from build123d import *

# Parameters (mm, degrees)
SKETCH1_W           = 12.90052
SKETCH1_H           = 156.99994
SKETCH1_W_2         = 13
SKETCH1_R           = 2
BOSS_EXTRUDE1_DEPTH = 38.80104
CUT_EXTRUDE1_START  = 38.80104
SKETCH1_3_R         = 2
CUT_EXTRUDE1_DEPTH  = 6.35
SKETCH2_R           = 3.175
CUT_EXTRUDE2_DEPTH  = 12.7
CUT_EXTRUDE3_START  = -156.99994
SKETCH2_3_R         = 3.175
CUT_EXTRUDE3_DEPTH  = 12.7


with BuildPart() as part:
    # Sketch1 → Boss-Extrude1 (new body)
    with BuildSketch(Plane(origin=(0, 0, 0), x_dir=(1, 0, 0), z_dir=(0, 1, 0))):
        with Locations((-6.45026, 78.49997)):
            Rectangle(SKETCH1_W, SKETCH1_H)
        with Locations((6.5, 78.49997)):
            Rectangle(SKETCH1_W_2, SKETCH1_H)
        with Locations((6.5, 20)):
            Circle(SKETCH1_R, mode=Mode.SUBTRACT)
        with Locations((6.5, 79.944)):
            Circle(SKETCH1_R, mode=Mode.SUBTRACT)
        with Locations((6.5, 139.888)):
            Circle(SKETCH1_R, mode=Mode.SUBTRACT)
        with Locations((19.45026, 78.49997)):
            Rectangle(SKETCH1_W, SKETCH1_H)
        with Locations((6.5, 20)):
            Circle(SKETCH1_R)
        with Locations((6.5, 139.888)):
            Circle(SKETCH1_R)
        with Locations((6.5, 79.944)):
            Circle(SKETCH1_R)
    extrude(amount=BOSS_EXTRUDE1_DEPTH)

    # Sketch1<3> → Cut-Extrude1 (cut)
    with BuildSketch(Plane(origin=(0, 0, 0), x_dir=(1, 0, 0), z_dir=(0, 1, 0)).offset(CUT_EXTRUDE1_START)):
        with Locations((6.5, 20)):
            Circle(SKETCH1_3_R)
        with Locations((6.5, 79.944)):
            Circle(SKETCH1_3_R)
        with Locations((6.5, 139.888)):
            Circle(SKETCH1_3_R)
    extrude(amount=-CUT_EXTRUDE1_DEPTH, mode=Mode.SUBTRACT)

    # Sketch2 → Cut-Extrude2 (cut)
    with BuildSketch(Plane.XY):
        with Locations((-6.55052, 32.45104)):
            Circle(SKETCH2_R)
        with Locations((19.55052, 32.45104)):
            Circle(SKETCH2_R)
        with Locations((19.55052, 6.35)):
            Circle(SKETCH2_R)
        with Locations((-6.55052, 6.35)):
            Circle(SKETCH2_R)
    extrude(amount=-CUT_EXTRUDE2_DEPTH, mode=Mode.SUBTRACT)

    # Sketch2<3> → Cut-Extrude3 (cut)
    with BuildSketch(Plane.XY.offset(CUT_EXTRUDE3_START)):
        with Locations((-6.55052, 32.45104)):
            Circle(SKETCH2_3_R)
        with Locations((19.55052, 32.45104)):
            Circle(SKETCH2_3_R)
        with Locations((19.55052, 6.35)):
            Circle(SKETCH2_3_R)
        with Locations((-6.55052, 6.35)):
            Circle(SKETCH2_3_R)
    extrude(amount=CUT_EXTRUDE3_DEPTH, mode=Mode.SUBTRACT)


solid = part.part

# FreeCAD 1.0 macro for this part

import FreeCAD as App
import Part
import Sketcher

V = App.Vector
Q = App.Units.Quantity


def add_polygon(sketch, points):
    """Adds a closed chain of lines whose ends are joined by coincident constraints."""
    first, n = sketch.GeometryCount, len(points)
    for a, b in zip(points, points[1:] + points[:1]):
        sketch.addGeometry(Part.LineSegment(App.Vector(*a, 0), App.Vector(*b, 0)), False)
    for i in range(n):
        sketch.addConstraint(Sketcher.Constraint("Coincident", first + i, 2, first + (i + 1) % n, 1))

doc = App.newDocument("Part")
body = doc.addObject("PartDesign::Body", "Body")

sketch1 = body.newObject("Sketcher::SketchObject", "Sketch")
sketch1.AttachmentSupport = (doc.getObject("XZ_Plane"), [""])
sketch1.MapMode = "FlatFace"
add_polygon(sketch1, [(-12.90052, -156.99994), (-12.90052, 0), (25.90052, 0), (25.90052, -156.99994)])
sketch1.addConstraint([
    Sketcher.Constraint("Vertical", 0),
    Sketcher.Constraint("Horizontal", 1),
    Sketcher.Constraint("Vertical", 2),
    Sketcher.Constraint("Horizontal", 3),
    Sketcher.Constraint("PointOnObject", 0, 2, -1),
    Sketcher.Constraint("DistanceX", 1, 1, 1, 2, Q("1.5276 in")),
    Sketcher.Constraint("DistanceY", 0, 1, 0, 2, Q("6.1811 in")),
    Sketcher.Constraint("DistanceX", 0, 2, -1, 1, 12.90052),
])
pad1 = body.newObject("PartDesign::Pad", "Pad")
pad1.Profile = sketch1
pad1.Length = Q("1.5276 in")
pad1.Reversed = True

sketch2 = body.newObject("Sketcher::SketchObject", "Sketch001")
sketch2.AttachmentSupport = (doc.getObject("XZ_Plane"), [""])
sketch2.MapMode = "FlatFace"
sketch2.AttachmentOffset = App.Placement(V(0, 0, -1.5276 * 25.4), App.Rotation())
sketch2.addGeometry([
    Part.Circle(V(6.5, -20, 0), V(0, 0, 1), 2),
    Part.Circle(V(6.5, -79.944, 0), V(0, 0, 1), 2),
    Part.Circle(V(6.5, -139.888, 0), V(0, 0, 1), 2),
], False)
sketch2.addConstraint([
    Sketcher.Constraint("Equal", 0, 1),
    Sketcher.Constraint("Equal", 1, 2),
    Sketcher.Constraint("Vertical", 0, 3, 1, 3),
    Sketcher.Constraint("Vertical", 1, 3, 2, 3),
    Sketcher.Constraint("Diameter", 0, 4.0),
    Sketcher.Constraint("DistanceY", 1, 3, 0, 3, Q("2.36 in")),
    Sketcher.Constraint("DistanceY", 2, 3, 1, 3, Q("2.36 in")),
    Sketcher.Constraint("DistanceX", -1, 1, 0, 3, 6.5),
    Sketcher.Constraint("DistanceY", 0, 3, -1, 1, 20.0),
])
pocket1 = body.newObject("PartDesign::Pocket", "Pocket")
pocket1.Profile = sketch2
pocket1.Length = Q("0.25 in")
pocket1.Reversed = True

sketch3 = body.newObject("Sketcher::SketchObject", "Sketch002")
sketch3.AttachmentSupport = (doc.getObject("XY_Plane"), [""])
sketch3.MapMode = "FlatFace"
sketch3.addGeometry([
    Part.Circle(V(-6.55052, 32.45104, 0), V(0, 0, 1), 3.175),
    Part.Circle(V(19.55052, 32.45104, 0), V(0, 0, 1), 3.175),
    Part.Circle(V(19.55052, 6.35, 0), V(0, 0, 1), 3.175),
    Part.Circle(V(-6.55052, 6.35, 0), V(0, 0, 1), 3.175),
], False)
sketch3.addConstraint([
    Sketcher.Constraint("Equal", 0, 1),
    Sketcher.Constraint("Equal", 1, 2),
    Sketcher.Constraint("Equal", 2, 3),
    Sketcher.Constraint("Horizontal", 0, 3, 1, 3),
    Sketcher.Constraint("Horizontal", 2, 3, 3, 3),
    Sketcher.Constraint("Vertical", 1, 3, 2, 3),
    Sketcher.Constraint("Vertical", 0, 3, 3, 3),
    Sketcher.Constraint("Diameter", 0, Q("0.25 in")),
    Sketcher.Constraint("DistanceY", -1, 1, 2, 3, Q("0.25 in")),
    Sketcher.Constraint("DistanceY", -1, 1, 0, 3, Q("1.2776 in")),
    Sketcher.Constraint("DistanceX", 0, 3, 1, 3, Q("1.0276 in")),
    Sketcher.Constraint("DistanceX", 0, 3, -1, 1, 6.55052),
])
pocket2 = body.newObject("PartDesign::Pocket", "Pocket001")
pocket2.Profile = sketch3
pocket2.Length = Q("0.5 in")

sketch4 = body.newObject("Sketcher::SketchObject", "Sketch003")
sketch4.AttachmentSupport = (doc.getObject("XY_Plane"), [""])
sketch4.MapMode = "FlatFace"
sketch4.AttachmentOffset = App.Placement(V(0, 0, -6.1811 * 25.4), App.Rotation())
sketch4.addGeometry([
    Part.Circle(V(-6.55052, 32.45104, 0), V(0, 0, 1), 3.175),
    Part.Circle(V(19.55052, 32.45104, 0), V(0, 0, 1), 3.175),
    Part.Circle(V(19.55052, 6.35, 0), V(0, 0, 1), 3.175),
    Part.Circle(V(-6.55052, 6.35, 0), V(0, 0, 1), 3.175),
], False)
sketch4.addConstraint([
    Sketcher.Constraint("Equal", 0, 1),
    Sketcher.Constraint("Equal", 1, 2),
    Sketcher.Constraint("Equal", 2, 3),
    Sketcher.Constraint("Horizontal", 0, 3, 1, 3),
    Sketcher.Constraint("Horizontal", 2, 3, 3, 3),
    Sketcher.Constraint("Vertical", 1, 3, 2, 3),
    Sketcher.Constraint("Vertical", 0, 3, 3, 3),
    Sketcher.Constraint("Diameter", 0, Q("0.25 in")),
    Sketcher.Constraint("DistanceY", -1, 1, 2, 3, Q("0.25 in")),
    Sketcher.Constraint("DistanceY", -1, 1, 0, 3, Q("1.2776 in")),
    Sketcher.Constraint("DistanceX", 0, 3, 1, 3, Q("1.0276 in")),
    Sketcher.Constraint("DistanceX", 0, 3, -1, 1, 6.55052),
])
pocket3 = body.newObject("PartDesign::Pocket", "Pocket002")
pocket3.Profile = sketch4
pocket3.Length = Q("0.5 in")
pocket3.Reversed = True

doc.recompute()
